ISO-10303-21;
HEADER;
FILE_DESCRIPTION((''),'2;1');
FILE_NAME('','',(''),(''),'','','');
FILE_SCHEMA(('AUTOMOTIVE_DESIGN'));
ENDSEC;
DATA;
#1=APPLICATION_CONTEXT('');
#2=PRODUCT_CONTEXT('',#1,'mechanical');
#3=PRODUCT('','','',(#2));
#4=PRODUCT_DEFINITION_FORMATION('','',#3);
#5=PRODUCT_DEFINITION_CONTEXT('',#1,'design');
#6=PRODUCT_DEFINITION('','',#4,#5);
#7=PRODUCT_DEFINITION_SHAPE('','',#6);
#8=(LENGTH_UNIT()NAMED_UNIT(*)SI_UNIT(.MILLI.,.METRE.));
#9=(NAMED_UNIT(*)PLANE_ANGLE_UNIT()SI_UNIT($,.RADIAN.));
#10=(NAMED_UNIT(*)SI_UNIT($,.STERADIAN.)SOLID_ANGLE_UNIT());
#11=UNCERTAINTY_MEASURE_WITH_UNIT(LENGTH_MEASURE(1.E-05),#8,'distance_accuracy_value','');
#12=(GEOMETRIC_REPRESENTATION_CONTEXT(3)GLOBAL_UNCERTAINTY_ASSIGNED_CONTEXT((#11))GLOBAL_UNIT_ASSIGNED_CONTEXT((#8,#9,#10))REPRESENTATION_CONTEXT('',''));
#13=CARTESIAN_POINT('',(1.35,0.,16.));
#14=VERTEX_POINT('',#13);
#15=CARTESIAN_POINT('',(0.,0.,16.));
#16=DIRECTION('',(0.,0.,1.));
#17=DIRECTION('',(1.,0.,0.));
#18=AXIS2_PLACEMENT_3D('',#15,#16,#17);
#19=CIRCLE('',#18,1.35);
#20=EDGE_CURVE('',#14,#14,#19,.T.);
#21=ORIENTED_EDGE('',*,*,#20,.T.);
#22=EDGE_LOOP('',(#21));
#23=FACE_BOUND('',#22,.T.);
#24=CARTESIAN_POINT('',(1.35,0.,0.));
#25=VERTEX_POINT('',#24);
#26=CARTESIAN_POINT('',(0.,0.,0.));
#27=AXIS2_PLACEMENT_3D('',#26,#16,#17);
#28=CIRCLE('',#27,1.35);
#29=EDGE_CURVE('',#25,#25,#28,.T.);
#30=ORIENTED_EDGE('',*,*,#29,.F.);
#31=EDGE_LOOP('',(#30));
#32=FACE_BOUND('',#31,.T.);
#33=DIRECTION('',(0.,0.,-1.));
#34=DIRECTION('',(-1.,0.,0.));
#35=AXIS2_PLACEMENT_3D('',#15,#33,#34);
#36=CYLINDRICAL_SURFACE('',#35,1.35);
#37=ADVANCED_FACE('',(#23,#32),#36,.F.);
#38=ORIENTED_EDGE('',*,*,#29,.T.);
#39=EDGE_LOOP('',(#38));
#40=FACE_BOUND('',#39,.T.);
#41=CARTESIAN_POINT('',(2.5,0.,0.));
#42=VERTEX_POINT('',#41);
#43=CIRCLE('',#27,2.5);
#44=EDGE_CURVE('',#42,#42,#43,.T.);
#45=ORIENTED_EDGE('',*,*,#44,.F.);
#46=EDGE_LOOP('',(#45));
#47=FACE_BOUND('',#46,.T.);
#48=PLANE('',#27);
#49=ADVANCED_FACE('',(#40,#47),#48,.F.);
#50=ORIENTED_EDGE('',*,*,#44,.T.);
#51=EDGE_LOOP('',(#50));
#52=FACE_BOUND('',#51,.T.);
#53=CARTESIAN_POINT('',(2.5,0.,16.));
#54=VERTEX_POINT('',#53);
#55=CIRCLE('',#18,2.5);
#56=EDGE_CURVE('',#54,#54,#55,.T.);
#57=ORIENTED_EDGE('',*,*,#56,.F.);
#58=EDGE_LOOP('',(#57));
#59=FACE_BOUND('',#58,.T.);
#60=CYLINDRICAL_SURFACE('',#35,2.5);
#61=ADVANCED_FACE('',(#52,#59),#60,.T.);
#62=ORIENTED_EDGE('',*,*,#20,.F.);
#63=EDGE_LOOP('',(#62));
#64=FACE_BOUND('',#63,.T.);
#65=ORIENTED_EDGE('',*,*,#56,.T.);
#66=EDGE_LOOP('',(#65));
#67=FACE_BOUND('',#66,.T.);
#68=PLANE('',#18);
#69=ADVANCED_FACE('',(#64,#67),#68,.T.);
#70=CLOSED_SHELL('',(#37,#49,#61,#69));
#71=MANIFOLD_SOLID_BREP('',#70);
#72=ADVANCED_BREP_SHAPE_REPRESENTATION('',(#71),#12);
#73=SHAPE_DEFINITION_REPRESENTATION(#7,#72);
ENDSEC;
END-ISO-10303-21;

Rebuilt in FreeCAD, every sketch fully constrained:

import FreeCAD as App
import Part
import Sketcher
Q = App.Units.Quantity

doc = App.newDocument("Part")
body = doc.addObject("PartDesign::Body", "Body")

# Sketch on XY plane
sketch1 = body.newObject("Sketcher::SketchObject", "Sketch")
sketch1.AttachmentSupport = (doc.getObject("XY_Plane"), [""])
sketch1.MapMode = "FlatFace"
sketch1.addGeometry(Part.Circle(App.Vector(0, 0, 0), App.Vector(0, 0, 1), 2.5), False)
sketch1.addGeometry(Part.Circle(App.Vector(0, 0, 0), App.Vector(0, 0, 1), 1.4), False)
sketch1.addConstraint(Sketcher.Constraint("Coincident", 0, 3, -1, 1))
sketch1.addConstraint(Sketcher.Constraint("Coincident", 1, 3, -1, 1))
sketch1.addConstraint(Sketcher.Constraint("Diameter", 0, Q("5 mm")))
sketch1.addConstraint(Sketcher.Constraint("Diameter", 1, Q("2.7 mm")))
pad1 = body.newObject("PartDesign::Pad", "Pad")
pad1.Profile = sketch1
pad1.Length = 16

doc.recompute()
